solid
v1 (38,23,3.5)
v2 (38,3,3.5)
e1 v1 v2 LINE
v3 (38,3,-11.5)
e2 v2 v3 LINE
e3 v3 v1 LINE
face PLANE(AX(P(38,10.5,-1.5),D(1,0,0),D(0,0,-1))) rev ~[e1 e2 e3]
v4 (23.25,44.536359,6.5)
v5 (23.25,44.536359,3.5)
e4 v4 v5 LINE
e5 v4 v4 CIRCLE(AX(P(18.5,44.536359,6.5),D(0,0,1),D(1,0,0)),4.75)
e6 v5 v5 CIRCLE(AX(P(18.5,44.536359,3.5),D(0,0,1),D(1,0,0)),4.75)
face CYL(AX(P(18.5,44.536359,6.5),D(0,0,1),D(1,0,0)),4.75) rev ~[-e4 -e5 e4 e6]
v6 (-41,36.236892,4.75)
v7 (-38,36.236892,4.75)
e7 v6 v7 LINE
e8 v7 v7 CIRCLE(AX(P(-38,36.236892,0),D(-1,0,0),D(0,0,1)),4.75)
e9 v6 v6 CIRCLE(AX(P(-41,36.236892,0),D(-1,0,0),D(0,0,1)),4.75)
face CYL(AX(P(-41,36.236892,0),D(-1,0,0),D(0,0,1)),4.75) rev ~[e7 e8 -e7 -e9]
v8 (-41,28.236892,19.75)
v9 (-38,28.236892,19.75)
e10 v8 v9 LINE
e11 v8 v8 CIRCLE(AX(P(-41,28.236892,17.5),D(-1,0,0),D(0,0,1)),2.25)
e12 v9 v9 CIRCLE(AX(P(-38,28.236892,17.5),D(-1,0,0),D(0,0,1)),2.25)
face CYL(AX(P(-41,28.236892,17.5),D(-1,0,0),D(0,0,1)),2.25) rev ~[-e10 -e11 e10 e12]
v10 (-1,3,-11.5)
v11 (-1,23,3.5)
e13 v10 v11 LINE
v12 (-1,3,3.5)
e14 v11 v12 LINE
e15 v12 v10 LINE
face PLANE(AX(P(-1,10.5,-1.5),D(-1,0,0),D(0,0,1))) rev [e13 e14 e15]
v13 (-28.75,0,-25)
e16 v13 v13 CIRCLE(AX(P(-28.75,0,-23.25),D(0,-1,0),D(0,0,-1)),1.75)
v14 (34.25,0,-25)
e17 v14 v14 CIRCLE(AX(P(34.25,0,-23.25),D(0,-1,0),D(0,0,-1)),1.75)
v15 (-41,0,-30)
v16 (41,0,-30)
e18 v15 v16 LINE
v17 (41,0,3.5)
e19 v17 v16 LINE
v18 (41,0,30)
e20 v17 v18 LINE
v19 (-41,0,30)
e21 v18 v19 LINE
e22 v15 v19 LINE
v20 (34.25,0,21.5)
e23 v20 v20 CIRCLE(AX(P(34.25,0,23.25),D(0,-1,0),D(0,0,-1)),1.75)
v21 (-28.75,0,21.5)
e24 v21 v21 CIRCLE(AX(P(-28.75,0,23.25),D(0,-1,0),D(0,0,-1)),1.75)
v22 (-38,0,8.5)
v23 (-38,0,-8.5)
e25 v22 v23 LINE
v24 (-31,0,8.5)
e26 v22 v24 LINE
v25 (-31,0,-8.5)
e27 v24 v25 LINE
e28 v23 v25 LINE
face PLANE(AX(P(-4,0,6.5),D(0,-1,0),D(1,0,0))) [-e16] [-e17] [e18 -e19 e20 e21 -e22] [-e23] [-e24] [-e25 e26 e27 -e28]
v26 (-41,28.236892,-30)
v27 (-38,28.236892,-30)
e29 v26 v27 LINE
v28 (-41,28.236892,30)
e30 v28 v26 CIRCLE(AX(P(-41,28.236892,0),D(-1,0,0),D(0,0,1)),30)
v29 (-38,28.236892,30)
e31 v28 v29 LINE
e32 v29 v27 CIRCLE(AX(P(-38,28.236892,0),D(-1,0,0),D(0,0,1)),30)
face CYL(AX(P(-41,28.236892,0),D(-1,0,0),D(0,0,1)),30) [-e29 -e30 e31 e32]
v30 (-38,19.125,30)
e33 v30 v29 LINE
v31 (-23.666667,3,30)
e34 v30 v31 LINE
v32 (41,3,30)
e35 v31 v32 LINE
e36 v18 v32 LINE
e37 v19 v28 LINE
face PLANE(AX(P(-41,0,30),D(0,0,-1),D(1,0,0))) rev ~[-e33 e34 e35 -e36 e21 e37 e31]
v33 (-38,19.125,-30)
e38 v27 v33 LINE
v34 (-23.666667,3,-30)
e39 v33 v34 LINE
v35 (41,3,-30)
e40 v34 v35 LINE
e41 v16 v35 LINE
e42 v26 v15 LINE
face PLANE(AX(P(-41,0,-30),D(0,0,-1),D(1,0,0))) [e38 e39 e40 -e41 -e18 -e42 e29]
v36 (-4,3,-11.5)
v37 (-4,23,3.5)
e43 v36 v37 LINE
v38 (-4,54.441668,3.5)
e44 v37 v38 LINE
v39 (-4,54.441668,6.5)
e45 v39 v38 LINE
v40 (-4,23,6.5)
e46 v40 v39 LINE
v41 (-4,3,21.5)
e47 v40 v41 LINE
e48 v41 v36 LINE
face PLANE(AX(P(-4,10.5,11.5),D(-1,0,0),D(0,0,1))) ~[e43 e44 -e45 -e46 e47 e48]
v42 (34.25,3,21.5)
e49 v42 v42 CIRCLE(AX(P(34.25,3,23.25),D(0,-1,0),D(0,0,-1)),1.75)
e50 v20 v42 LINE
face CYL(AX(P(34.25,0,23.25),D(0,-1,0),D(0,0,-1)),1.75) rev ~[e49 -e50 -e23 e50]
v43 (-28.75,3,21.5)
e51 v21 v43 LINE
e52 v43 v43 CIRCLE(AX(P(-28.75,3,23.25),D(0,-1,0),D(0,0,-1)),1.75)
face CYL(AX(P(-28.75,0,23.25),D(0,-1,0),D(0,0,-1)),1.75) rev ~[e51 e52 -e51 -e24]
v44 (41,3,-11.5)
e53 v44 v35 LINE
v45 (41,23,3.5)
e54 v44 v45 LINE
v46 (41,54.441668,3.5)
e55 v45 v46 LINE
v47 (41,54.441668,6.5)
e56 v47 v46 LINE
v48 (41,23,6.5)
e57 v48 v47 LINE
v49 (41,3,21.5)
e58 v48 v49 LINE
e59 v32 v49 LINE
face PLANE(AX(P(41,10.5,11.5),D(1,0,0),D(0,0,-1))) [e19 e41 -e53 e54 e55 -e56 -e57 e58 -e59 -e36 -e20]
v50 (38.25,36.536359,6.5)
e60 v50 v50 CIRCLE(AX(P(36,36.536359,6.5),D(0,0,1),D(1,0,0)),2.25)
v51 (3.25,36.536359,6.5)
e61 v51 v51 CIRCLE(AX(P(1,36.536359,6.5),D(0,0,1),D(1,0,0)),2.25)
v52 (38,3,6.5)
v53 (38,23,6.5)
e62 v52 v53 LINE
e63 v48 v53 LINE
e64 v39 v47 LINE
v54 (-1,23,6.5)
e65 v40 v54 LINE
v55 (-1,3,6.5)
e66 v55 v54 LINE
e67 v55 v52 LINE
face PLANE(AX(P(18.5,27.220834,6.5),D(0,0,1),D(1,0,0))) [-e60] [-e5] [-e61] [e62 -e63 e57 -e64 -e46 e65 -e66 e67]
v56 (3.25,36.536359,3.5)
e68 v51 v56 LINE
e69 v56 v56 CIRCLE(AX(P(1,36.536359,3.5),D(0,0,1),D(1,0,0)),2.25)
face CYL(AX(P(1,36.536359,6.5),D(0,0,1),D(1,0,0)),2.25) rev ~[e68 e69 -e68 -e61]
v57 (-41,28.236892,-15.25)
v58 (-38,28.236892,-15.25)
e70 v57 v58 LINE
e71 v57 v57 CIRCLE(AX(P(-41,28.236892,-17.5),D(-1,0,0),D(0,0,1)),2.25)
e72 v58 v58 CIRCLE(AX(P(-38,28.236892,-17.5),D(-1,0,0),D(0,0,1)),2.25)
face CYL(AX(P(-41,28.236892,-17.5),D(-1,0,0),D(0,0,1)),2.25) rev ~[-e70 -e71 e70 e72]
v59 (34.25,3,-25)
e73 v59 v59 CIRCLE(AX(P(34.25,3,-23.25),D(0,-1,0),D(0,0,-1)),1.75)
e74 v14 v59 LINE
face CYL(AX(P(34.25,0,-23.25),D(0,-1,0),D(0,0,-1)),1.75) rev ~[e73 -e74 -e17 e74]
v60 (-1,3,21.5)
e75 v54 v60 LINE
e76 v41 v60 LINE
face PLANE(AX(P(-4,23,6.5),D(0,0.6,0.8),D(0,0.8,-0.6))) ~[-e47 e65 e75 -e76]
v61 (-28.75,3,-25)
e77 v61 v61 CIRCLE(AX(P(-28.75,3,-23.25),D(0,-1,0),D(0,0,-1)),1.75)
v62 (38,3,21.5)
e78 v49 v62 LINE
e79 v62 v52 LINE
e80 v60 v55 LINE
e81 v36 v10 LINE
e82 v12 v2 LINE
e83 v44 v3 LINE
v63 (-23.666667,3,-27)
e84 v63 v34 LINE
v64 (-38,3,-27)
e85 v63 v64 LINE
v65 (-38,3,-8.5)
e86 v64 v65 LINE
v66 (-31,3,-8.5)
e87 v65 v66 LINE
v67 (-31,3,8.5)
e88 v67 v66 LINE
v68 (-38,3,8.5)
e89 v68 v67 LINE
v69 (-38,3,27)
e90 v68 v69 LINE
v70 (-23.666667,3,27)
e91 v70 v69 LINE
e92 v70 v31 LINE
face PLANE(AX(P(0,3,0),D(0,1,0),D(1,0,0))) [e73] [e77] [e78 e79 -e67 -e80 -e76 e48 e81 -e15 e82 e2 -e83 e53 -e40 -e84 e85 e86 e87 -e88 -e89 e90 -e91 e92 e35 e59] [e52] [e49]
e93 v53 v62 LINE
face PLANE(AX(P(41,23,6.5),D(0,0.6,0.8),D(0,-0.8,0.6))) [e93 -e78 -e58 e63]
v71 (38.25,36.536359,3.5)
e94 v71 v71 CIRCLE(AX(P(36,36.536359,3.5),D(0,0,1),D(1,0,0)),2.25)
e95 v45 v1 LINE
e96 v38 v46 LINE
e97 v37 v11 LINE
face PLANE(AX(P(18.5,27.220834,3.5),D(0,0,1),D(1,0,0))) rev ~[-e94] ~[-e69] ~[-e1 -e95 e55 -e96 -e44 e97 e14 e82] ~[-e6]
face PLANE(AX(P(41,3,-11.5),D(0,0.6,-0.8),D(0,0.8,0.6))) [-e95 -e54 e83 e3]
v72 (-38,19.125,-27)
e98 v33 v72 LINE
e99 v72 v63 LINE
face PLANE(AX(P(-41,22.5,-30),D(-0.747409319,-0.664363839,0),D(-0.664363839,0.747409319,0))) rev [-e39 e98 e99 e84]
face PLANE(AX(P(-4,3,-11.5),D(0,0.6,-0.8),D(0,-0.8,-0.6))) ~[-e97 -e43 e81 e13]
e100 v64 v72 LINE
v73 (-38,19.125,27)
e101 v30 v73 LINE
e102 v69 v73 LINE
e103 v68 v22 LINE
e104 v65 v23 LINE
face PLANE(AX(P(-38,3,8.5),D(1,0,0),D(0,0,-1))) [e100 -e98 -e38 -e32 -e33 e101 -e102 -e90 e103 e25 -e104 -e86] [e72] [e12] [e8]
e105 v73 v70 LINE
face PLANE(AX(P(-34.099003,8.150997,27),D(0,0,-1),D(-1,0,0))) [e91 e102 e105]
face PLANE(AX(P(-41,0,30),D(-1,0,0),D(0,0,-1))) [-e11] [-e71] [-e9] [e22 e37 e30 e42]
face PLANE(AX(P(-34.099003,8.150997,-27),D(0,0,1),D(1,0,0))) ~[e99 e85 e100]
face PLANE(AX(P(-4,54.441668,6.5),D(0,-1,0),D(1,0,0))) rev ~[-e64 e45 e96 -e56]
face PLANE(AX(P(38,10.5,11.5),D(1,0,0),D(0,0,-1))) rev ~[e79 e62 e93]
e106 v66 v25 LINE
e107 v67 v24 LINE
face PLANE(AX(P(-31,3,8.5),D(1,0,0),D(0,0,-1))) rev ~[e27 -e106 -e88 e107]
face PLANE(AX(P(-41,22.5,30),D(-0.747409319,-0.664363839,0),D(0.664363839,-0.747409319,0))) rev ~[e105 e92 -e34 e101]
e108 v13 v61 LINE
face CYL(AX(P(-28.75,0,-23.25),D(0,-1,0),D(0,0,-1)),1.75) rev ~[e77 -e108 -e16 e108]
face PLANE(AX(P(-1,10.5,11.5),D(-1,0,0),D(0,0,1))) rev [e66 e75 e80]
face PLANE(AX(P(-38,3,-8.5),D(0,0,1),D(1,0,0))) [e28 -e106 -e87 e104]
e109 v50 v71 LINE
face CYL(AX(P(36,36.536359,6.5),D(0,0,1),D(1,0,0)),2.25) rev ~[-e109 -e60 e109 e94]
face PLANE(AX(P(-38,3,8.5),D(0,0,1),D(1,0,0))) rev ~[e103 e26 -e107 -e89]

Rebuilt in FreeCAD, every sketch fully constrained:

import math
import FreeCAD as App
import Part
import Sketcher
Q = App.Units.Quantity


def add_polygon(sketch, points):
    """Adds a closed chain of lines whose ends are joined by coincident constraints."""
    first, n = sketch.GeometryCount, len(points)
    for a, b in zip(points, points[1:] + points[:1]):
        sketch.addGeometry(Part.LineSegment(App.Vector(*a, 0), App.Vector(*b, 0)), False)
    for i in range(n):
        sketch.addConstraint(Sketcher.Constraint("Coincident", first + i, 2, first + (i + 1) % n, 1))

doc = App.newDocument("Part")
body = doc.addObject("PartDesign::Body", "Body")

# Sketch on XZ plane
sketch1 = doc.addObject("Sketcher::SketchObject", "Sketch")
body.addObject(sketch1)
sketch1.AttachmentSupport = (doc.XZ_Plane, [""])
sketch1.MapMode = "FlatFace"
add_polygon(sketch1, [(-41, -30), (-41, 30), (41, 30), (41, -30)])  # lines 0-3
sketch1.addConstraint(Sketcher.Constraint("Vertical", 0))
sketch1.addConstraint(Sketcher.Constraint("Horizontal", 1))
sketch1.addConstraint(Sketcher.Constraint("Vertical", 2))
sketch1.addConstraint(Sketcher.Constraint("Horizontal", 3))
sketch1.addConstraint(Sketcher.Constraint("Symmetric", 0, 2, 2, 2, -1, 1))
sketch1.addConstraint(Sketcher.Constraint("DistanceX", 1, 1, 1, 2, Q("82 mm")))
sketch1.addConstraint(Sketcher.Constraint("DistanceY", 0, 1, 0, 2, Q("60 mm")))
pad1 = doc.addObject("PartDesign::Pad", "Pad")
body.addObject(pad1)
pad1.Profile = sketch1
pad1.Length = 3
pad1.Reversed = True

# Sketch on XY plane
sketch2 = doc.addObject("Sketcher::SketchObject", "Sketch001")
body.addObject(sketch2)
sketch2.AttachmentSupport = (doc.XY_Plane, [""])
sketch2.MapMode = "FlatFace"
sketch2.AttachmentOffset = App.Placement(App.Vector(0, 0, 30), App.Rotation())
add_polygon(sketch2, [(-41, 22), (-41, 0), (-21, 0)])  # lines 0-2
sketch2.addConstraint(Sketcher.Constraint("Vertical", 0))
sketch2.addConstraint(Sketcher.Constraint("Horizontal", 1))
sketch2.addConstraint(Sketcher.Constraint("PointOnObject", 0, 2, -1))
sketch2.addConstraint(Sketcher.Constraint("DistanceX", 1, 1, 1, 2, Q("20 mm")))
sketch2.addConstraint(Sketcher.Constraint("DistanceY", 0, 2, 0, 1, Q("22.5 mm")))
sketch2.addConstraint(Sketcher.Constraint("DistanceX", 0, 2, -1, 1, Q("41 mm")))
pad2 = doc.addObject("PartDesign::Pad", "Pad001")
body.addObject(pad2)
pad2.Profile = sketch2
pad2.Length = 3
pad2.Reversed = True
doc.recompute()

mirrored = doc.addObject("PartDesign::Mirrored", "Mirrored")
body.addObject(mirrored)
mirrored.Originals = [pad2]
mirrored.MirrorPlane = (doc.XY_Plane, [""])
body.Tip = mirrored

# Sketch on YZ plane
sketch3 = doc.addObject("Sketcher::SketchObject", "Sketch002")
body.addObject(sketch3)
sketch3.AttachmentSupport = (doc.YZ_Plane, [""])
sketch3.MapMode = "FlatFace"
sketch3.AttachmentOffset = App.Placement(App.Vector(0, 0, -41), App.Rotation())
sketch3.addGeometry(Part.LineSegment(App.Vector(0, -30, 0), App.Vector(0, 30, 0)), False)
sketch3.addGeometry(Part.LineSegment(App.Vector(0, 30, 0), App.Vector(28.2, 30, 0)), False)
sketch3.addGeometry(Part.ArcOfCircle(Part.Circle(App.Vector(28.2, 0, 0), App.Vector(0, 0, 1), 30), math.radians(-90), math.radians(90)), False)
sketch3.addGeometry(Part.LineSegment(App.Vector(28.2, -30, 0), App.Vector(0, -30, 0)), False)
sketch3.addGeometry(Part.Circle(App.Vector(28.2, -17.5, 0), App.Vector(0, 0, 1), 2.2), False)
sketch3.addGeometry(Part.Circle(App.Vector(28.2, 17.5, 0), App.Vector(0, 0, 1), 2.2), False)
sketch3.addGeometry(Part.Circle(App.Vector(36.2, 0, 0), App.Vector(0, 0, 1), 4.8), False)
sketch3.addConstraint(Sketcher.Constraint("Coincident", 0, 2, 1, 1))
sketch3.addConstraint(Sketcher.Constraint("Tangent", 1, 2, 2, 2))
sketch3.addConstraint(Sketcher.Constraint("Tangent", 2, 1, 3, 1))
sketch3.addConstraint(Sketcher.Constraint("Coincident", 3, 2, 0, 1))
sketch3.addConstraint(Sketcher.Constraint("Vertical", 0))
sketch3.addConstraint(Sketcher.Constraint("Horizontal", 1))
sketch3.addConstraint(Sketcher.Constraint("Horizontal", 3))
sketch3.addConstraint(Sketcher.Constraint("Equal", 4, 5))
sketch3.addConstraint(Sketcher.Constraint("Symmetric", 0, 2, 3, 2, -1, 1))
sketch3.addConstraint(Sketcher.Constraint("Symmetric", 4, 3, 5, 3, -1))
sketch3.addConstraint(Sketcher.Constraint("PointOnObject", 6, 3, -1))
sketch3.addConstraint(Sketcher.Constraint("Vertical", 2, 3, 4, 3))
sketch3.addConstraint(Sketcher.Constraint("Radius", 2, Q("30 mm")))
sketch3.addConstraint(Sketcher.Constraint("Diameter", 4, Q("4.5 mm")))
sketch3.addConstraint(Sketcher.Constraint("Diameter", 6, Q("9.5 mm")))
sketch3.addConstraint(Sketcher.Constraint("DistanceY", 4, 3, 5, 3, Q("35 mm")))
sketch3.addConstraint(Sketcher.Constraint("DistanceX", 2, 3, 6, 3, Q("8 mm")))
sketch3.addConstraint(Sketcher.Constraint("DistanceX", 1, 1, 1, 2, Q("28.236892 mm")))
pad3 = doc.addObject("PartDesign::Pad", "Pad002")
body.addObject(pad3)
pad3.Profile = sketch3
pad3.Length = 3

# Sketch on XZ plane
sketch4 = doc.addObject("Sketcher::SketchObject", "Sketch003")
body.addObject(sketch4)
sketch4.AttachmentSupport = (doc.XZ_Plane, [""])
sketch4.MapMode = "FlatFace"
sketch4.AttachmentOffset = App.Placement(App.Vector(0, 0, -3), App.Rotation())
add_polygon(sketch4, [(-38, -8), (-38, 8), (-31, 8), (-31, -8)])  # lines 0-3
sketch4.addConstraint(Sketcher.Constraint("Vertical", 0))
sketch4.addConstraint(Sketcher.Constraint("Horizontal", 1))
sketch4.addConstraint(Sketcher.Constraint("Vertical", 2))
sketch4.addConstraint(Sketcher.Constraint("Horizontal", 3))
sketch4.addConstraint(Sketcher.Constraint("DistanceX", 1, 1, 1, 2, Q("7 mm")))
sketch4.addConstraint(Sketcher.Constraint("DistanceY", 0, 1, 0, 2, Q("17 mm")))
sketch4.addConstraint(Sketcher.Constraint("DistanceX", 0, 2, -1, 1, Q("38 mm")))
sketch4.addConstraint(Sketcher.Constraint("DistanceY", -1, 1, 0, 2, Q("8.5 mm")))
pocket1 = doc.addObject("PartDesign::Pocket", "Pocket")
body.addObject(pocket1)
pocket1.Profile = sketch4
pocket1.Length = 3
pocket1.Reversed = True

# Sketch on XY plane
sketch5 = doc.addObject("Sketcher::SketchObject", "Sketch004")
body.addObject(sketch5)
sketch5.AttachmentSupport = (doc.XY_Plane, [""])
sketch5.MapMode = "FlatFace"
sketch5.AttachmentOffset = App.Placement(App.Vector(0, 0, 6.5), App.Rotation())
add_polygon(sketch5, [(-4, 54), (-4, 0), (41, 0), (41, 54)])  # lines 0-3
sketch5.addConstraint(Sketcher.Constraint("Vertical", 0))
sketch5.addConstraint(Sketcher.Constraint("Horizontal", 1))
sketch5.addConstraint(Sketcher.Constraint("Vertical", 2))
sketch5.addConstraint(Sketcher.Constraint("Horizontal", 3))
sketch5.addConstraint(Sketcher.Constraint("PointOnObject", 0, 2, -1))
sketch5.addConstraint(Sketcher.Constraint("DistanceX", 1, 1, 1, 2, Q("45 mm")))
sketch5.addConstraint(Sketcher.Constraint("DistanceX", 0, 2, -1, 1, Q("4 mm")))
sketch5.addConstraint(Sketcher.Constraint("DistanceY", 0, 2, 0, 1, Q("54.441668 mm")))
pad4 = doc.addObject("PartDesign::Pad", "Pad003")
body.addObject(pad4)
pad4.Profile = sketch5
pad4.Length = 3
pad4.Reversed = True

# Sketch on XY plane
sketch6 = doc.addObject("Sketcher::SketchObject", "Sketch005")
body.addObject(sketch6)
sketch6.AttachmentSupport = (doc.XY_Plane, [""])
sketch6.MapMode = "FlatFace"
sketch6.AttachmentOffset = App.Placement(App.Vector(0, 0, 6.5), App.Rotation())
sketch6.addGeometry(Part.Circle(App.Vector(1, 36.5, 0), App.Vector(0, 0, 1), 2.2), False)
sketch6.addGeometry(Part.Circle(App.Vector(36, 36.5, 0), App.Vector(0, 0, 1), 2.2), False)
sketch6.addGeometry(Part.Circle(App.Vector(18.5, 44.5, 0), App.Vector(0, 0, 1), 4.8), False)
sketch6.addConstraint(Sketcher.Constraint("Equal", 0, 1))
sketch6.addConstraint(Sketcher.Constraint("Horizontal", 0, 3, 1, 3))
sketch6.addConstraint(Sketcher.Constraint("Diameter", 0, Q("4.5 mm")))
sketch6.addConstraint(Sketcher.Constraint("Diameter", 2, Q("9.5 mm")))
sketch6.addConstraint(Sketcher.Constraint("DistanceX", -1, 1, 0, 3, Q("1 mm")))
sketch6.addConstraint(Sketcher.Constraint("DistanceX", -1, 1, 1, 3, Q("36 mm")))
sketch6.addConstraint(Sketcher.Constraint("DistanceY", 0, 3, 2, 3, Q("8 mm")))
sketch6.addConstraint(Sketcher.Constraint("DistanceX", -1, 1, 2, 3, Q("18.5 mm")))
sketch6.addConstraint(Sketcher.Constraint("DistanceY", -1, 1, 0, 3, Q("36.536359 mm")))
pocket2 = doc.addObject("PartDesign::Pocket", "Pocket001")
body.addObject(pocket2)
pocket2.Profile = sketch6
pocket2.Length = 3

# Sketch on YZ plane
sketch7 = doc.addObject("Sketcher::SketchObject", "Sketch006")
body.addObject(sketch7)
sketch7.AttachmentSupport = (doc.YZ_Plane, [""])
sketch7.MapMode = "FlatFace"
sketch7.AttachmentOffset = App.Placement(App.Vector(0, 0, 41), App.Rotation())
add_polygon(sketch7, [(3, 22), (3, 6), (23, 6)])  # lines 0-2
add_polygon(sketch7, [(3, 4), (3, -12), (23, 4)])  # lines 3-5
sketch7.addConstraint(Sketcher.Constraint("Vertical", 0))
sketch7.addConstraint(Sketcher.Constraint("Horizontal", 1))
sketch7.addConstraint(Sketcher.Constraint("Vertical", 3))
sketch7.addConstraint(Sketcher.Constraint("Horizontal", 5))
sketch7.addConstraint(Sketcher.Constraint("Vertical", 2, 2, 3, 2))
sketch7.addConstraint(Sketcher.Constraint("Vertical", 1, 2, 4, 2))
sketch7.addConstraint(Sketcher.Constraint("Equal", 0, 3))
sketch7.addConstraint(Sketcher.Constraint("DistanceX", 1, 1, 1, 2, Q("20 mm")))
sketch7.addConstraint(Sketcher.Constraint("DistanceY", 0, 2, 0, 1, Q("15 mm")))
sketch7.addConstraint(Sketcher.Constraint("DistanceX", -1, 1, 0, 2, Q("3 mm")))
sketch7.addConstraint(Sketcher.Constraint("DistanceY", 3, 2, 0, 2, Q("18 mm")))
sketch7.addConstraint(Sketcher.Constraint("DistanceY", -1, 1, 0, 2, Q("6.5 mm")))
pad5 = doc.addObject("PartDesign::Pad", "Pad004")
body.addObject(pad5)
pad5.Profile = sketch7
pad5.Length = 3
pad5.Reversed = True
doc.recompute()

datumplane = doc.addObject("PartDesign::Plane", "DatumPlane")
body.addObject(datumplane)
datumplane.AttachmentSupport = (doc.YZ_Plane, [""])
datumplane.MapMode = "FlatFace"
datumplane.AttachmentOffset = App.Placement(App.Vector(0, 0, 18.5), App.Rotation())
mirrored2 = doc.addObject("PartDesign::Mirrored", "Mirrored001")
body.addObject(mirrored2)
mirrored2.Originals = [pad5]
mirrored2.MirrorPlane = (datumplane, [""])
body.Tip = mirrored2

# Sketch on XZ plane
sketch8 = doc.addObject("Sketcher::SketchObject", "Sketch007")
body.addObject(sketch8)
sketch8.AttachmentSupport = (doc.XZ_Plane, [""])
sketch8.MapMode = "FlatFace"
sketch8.addGeometry(Part.Circle(App.Vector(-28.8, 23.2, 0), App.Vector(0, 0, 1), 1.8), False)
sketch8.addGeometry(Part.Circle(App.Vector(34.2, 23.2, 0), App.Vector(0, 0, 1), 1.8), False)
sketch8.addGeometry(Part.Circle(App.Vector(34.2, -23.2, 0), App.Vector(0, 0, 1), 1.8), False)
sketch8.addGeometry(Part.Circle(App.Vector(-28.8, -23.2, 0), App.Vector(0, 0, 1), 1.8), False)
sketch8.addConstraint(Sketcher.Constraint("Equal", 0, 1))
sketch8.addConstraint(Sketcher.Constraint("Equal", 1, 2))
sketch8.addConstraint(Sketcher.Constraint("Equal", 2, 3))
sketch8.addConstraint(Sketcher.Constraint("Symmetric", 1, 3, 2, 3, -1))
sketch8.addConstraint(Sketcher.Constraint("Symmetric", 0, 3, 3, 3, -1))
sketch8.addConstraint(Sketcher.Constraint("Horizontal", 0, 3, 1, 3))
sketch8.addConstraint(Sketcher.Constraint("Diameter", 0, Q("3.5 mm")))
sketch8.addConstraint(Sketcher.Constraint("DistanceX", 0, 3, 1, 3, Q("63 mm")))
sketch8.addConstraint(Sketcher.Constraint("DistanceY", 2, 3, 1, 3, Q("46.5 mm")))
sketch8.addConstraint(Sketcher.Constraint("DistanceX", 0, 3, -1, 1, Q("28.75 mm")))
pocket3 = doc.addObject("PartDesign::Pocket", "Pocket002")
body.addObject(pocket3)
pocket3.Profile = sketch8
pocket3.Length = 3

doc.recompute()
